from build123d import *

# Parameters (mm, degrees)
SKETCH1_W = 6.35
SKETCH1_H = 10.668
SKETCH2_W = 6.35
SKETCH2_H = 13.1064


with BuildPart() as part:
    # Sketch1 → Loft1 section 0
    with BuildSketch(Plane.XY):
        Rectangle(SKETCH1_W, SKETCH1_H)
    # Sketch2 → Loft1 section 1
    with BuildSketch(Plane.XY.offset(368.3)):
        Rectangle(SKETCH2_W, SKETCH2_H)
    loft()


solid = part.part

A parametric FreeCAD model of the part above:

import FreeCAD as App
import Part
import Sketcher

V = App.Vector
Q = App.Units.Quantity


def add_polygon(sketch, points):
    """Adds a closed chain of lines whose ends are joined by coincident constraints."""
    first, n = sketch.GeometryCount, len(points)
    for a, b in zip(points, points[1:] + points[:1]):
        sketch.addGeometry(Part.LineSegment(App.Vector(*a, 0), App.Vector(*b, 0)), False)
    for i in range(n):
        sketch.addConstraint(Sketcher.Constraint("Coincident", first + i, 2, first + (i + 1) % n, 1))

doc = App.newDocument("Part")
body = doc.addObject("PartDesign::Body", "Body")

sketch1 = body.newObject("Sketcher::SketchObject", "Sketch")
sketch1.AttachmentSupport = (doc.getObject("XY_Plane"), [""])
sketch1.MapMode = "FlatFace"
add_polygon(sketch1, [(-3, 5), (-3, -5), (3, -5), (3, 5)])
sketch1.addConstraint([
    Sketcher.Constraint("Vertical", 0),
    Sketcher.Constraint("Horizontal", 1),
    Sketcher.Constraint("Vertical", 2),
    Sketcher.Constraint("Horizontal", 3),
    Sketcher.Constraint("Symmetric", 0, 2, 2, 2, -1, 1),
    Sketcher.Constraint("DistanceX", 1, 1, 1, 2, Q("0.25 in")),
    Sketcher.Constraint("DistanceY", 0, 2, 0, 1, Q("0.42 in")),
])

sketch2 = body.newObject("Sketcher::SketchObject", "Sketch001")
sketch2.AttachmentSupport = (doc.getObject("XY_Plane"), [""])
sketch2.MapMode = "FlatFace"
sketch2.AttachmentOffset = App.Placement(V(0, 0, 14.5 * 25.4), App.Rotation())
add_polygon(sketch2, [(-3, 7), (-3, -7), (3, -7), (3, 7)])
sketch2.addConstraint([
    Sketcher.Constraint("Vertical", 0),
    Sketcher.Constraint("Horizontal", 1),
    Sketcher.Constraint("Vertical", 2),
    Sketcher.Constraint("Horizontal", 3),
    Sketcher.Constraint("Symmetric", 0, 2, 2, 2, -1, 1),
    Sketcher.Constraint("DistanceX", 1, 1, 1, 2, Q("0.25 in")),
    Sketcher.Constraint("DistanceY", 0, 2, 0, 1, Q("0.516 in")),
])

additiveloft = body.newObject("PartDesign::AdditiveLoft", "AdditiveLoft")
additiveloft.Profile = sketch1
additiveloft.Sections = [sketch2]

doc.recompute()
